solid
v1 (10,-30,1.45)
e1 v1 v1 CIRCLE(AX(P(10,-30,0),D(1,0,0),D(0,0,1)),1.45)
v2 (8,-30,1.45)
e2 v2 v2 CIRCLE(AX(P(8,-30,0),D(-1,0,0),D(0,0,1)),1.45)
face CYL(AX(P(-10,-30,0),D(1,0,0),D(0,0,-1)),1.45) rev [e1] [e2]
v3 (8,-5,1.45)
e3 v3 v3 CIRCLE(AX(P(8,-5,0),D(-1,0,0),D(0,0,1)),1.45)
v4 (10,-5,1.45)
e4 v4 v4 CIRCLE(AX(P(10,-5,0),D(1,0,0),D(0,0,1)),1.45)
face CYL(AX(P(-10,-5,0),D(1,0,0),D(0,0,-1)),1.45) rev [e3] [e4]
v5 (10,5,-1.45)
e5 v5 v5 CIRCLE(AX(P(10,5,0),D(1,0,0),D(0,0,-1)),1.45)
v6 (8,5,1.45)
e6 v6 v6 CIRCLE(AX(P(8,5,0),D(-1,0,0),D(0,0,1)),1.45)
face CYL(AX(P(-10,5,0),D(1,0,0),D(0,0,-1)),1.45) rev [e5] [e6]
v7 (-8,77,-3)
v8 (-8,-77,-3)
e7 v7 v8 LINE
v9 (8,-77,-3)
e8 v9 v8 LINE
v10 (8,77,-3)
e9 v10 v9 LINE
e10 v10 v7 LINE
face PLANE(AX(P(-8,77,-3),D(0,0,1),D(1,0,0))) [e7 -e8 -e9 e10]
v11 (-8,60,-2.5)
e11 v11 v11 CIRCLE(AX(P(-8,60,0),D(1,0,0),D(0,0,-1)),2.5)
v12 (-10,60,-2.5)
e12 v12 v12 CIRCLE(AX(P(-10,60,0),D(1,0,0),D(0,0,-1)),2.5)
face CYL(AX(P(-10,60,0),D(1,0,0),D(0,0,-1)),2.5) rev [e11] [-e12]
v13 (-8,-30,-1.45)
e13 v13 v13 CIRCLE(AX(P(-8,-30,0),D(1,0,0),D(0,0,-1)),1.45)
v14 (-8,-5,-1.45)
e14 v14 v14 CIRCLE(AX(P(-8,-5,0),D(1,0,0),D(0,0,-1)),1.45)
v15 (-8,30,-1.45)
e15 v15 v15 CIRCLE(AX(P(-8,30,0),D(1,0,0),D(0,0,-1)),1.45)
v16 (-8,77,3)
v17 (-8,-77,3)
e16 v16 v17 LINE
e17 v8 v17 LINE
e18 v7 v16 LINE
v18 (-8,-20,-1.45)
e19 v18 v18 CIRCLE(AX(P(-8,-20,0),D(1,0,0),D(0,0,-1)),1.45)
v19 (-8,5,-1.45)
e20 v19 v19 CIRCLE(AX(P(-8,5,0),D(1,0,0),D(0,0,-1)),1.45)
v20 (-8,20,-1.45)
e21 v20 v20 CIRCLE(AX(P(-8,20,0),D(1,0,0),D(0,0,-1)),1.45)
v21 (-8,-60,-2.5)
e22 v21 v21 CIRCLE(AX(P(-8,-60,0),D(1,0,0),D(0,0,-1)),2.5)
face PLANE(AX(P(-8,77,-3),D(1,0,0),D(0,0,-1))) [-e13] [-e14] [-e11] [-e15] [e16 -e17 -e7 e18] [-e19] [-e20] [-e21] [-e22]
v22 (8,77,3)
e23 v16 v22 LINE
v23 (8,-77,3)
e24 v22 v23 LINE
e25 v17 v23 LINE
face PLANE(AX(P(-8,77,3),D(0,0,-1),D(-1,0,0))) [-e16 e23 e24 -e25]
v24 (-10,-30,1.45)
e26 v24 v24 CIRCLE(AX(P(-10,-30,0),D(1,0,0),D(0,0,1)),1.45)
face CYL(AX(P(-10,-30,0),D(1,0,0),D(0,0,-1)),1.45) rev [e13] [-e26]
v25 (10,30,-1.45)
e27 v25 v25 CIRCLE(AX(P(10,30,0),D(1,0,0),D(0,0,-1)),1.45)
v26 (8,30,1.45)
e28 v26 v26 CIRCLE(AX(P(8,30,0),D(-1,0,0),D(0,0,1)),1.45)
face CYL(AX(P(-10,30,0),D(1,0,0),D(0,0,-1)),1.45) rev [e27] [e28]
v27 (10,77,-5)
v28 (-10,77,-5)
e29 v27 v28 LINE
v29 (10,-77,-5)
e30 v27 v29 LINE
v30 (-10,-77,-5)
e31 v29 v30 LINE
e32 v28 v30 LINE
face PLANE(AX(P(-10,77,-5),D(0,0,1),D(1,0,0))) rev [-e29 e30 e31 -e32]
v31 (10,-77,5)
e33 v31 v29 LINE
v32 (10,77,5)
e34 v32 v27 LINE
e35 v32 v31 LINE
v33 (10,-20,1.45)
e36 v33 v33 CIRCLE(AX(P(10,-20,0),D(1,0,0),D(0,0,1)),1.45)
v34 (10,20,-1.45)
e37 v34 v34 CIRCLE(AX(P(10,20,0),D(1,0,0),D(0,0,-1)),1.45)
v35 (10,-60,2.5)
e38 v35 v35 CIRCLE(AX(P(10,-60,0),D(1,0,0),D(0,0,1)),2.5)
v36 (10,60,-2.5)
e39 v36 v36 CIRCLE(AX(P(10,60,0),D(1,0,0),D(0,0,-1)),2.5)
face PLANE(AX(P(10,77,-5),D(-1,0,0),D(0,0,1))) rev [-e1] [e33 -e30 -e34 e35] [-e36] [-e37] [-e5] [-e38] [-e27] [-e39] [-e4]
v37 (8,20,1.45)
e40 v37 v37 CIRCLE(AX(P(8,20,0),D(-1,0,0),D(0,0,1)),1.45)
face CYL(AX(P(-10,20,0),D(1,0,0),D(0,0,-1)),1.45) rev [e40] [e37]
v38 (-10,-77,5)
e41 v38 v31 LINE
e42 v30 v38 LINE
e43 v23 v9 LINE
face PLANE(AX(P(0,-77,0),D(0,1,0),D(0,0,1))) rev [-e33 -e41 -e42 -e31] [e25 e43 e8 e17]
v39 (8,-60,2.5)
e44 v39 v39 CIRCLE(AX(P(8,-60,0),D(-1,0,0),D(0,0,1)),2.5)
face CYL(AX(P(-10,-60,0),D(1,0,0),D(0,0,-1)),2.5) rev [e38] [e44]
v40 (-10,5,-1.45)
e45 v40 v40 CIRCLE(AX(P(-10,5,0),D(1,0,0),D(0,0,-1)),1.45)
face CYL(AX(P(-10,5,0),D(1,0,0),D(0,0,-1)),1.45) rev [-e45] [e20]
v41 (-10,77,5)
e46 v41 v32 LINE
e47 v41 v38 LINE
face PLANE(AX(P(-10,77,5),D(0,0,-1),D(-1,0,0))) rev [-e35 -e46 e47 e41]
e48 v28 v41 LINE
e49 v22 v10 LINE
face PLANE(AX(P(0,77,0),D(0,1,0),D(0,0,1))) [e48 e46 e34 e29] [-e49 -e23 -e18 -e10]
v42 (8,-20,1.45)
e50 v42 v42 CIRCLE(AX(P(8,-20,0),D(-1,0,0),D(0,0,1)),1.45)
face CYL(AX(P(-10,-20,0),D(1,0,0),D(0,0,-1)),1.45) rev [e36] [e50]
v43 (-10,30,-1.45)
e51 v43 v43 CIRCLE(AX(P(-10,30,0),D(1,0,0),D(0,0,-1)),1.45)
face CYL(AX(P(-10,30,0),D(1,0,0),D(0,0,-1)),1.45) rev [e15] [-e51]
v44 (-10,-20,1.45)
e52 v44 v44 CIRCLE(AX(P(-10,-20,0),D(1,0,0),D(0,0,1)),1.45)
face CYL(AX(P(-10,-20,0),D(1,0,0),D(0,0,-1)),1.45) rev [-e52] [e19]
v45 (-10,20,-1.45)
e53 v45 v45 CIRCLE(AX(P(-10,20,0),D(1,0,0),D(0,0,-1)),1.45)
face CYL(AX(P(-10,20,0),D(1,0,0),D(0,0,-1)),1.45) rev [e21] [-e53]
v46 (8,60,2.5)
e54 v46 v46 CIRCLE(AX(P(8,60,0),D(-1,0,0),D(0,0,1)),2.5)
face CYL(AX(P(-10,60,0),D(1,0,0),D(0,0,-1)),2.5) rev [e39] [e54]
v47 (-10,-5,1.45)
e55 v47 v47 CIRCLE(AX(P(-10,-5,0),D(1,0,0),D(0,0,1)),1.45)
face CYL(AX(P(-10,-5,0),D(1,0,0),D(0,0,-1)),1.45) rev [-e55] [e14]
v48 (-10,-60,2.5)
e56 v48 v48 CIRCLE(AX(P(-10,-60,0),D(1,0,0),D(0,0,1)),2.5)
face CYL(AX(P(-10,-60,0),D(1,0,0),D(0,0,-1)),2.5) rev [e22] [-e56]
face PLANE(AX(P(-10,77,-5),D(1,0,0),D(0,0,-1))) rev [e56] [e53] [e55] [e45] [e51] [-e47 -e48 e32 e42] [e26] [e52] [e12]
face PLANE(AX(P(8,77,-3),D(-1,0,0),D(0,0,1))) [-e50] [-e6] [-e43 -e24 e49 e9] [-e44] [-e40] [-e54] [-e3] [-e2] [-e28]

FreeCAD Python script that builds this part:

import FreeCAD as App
import Part
import Sketcher
from FreeCAD import Vector


def add_polygon(sketch, points):
    """Adds a closed chain of lines whose ends are joined by coincident constraints."""
    first, n = sketch.GeometryCount, len(points)
    for a, b in zip(points, points[1:] + points[:1]):
        sketch.addGeometry(Part.LineSegment(App.Vector(*a, 0), App.Vector(*b, 0)), False)
    for i in range(n):
        sketch.addConstraint(Sketcher.Constraint("Coincident", first + i, 2, first + (i + 1) % n, 1))

doc = App.newDocument("Part")
body = doc.addObject("PartDesign::Body", "Body")

# Sketch on XZ plane
sketch1 = body.newObject("Sketcher::SketchObject", "Sketch")
sketch1.AttachmentSupport = (doc.getObject("XZ_Plane"), [""])
sketch1.MapMode = "FlatFace"
add_polygon(sketch1, [(-10, -5), (-10, 5), (10, 5), (10, -5)])  # lines 0-3
add_polygon(sketch1, [(8, 3), (-8, 3), (-8, -3), (8, -3)])  # lines 4-7
sketch1.addConstraint(Sketcher.Constraint("Vertical", 0))
sketch1.addConstraint(Sketcher.Constraint("Horizontal", 1))
sketch1.addConstraint(Sketcher.Constraint("Vertical", 2))
sketch1.addConstraint(Sketcher.Constraint("Horizontal", 3))
sketch1.addConstraint(Sketcher.Constraint("Horizontal", 4))
sketch1.addConstraint(Sketcher.Constraint("Vertical", 5))
sketch1.addConstraint(Sketcher.Constraint("Horizontal", 6))
sketch1.addConstraint(Sketcher.Constraint("Vertical", 7))
sketch1.addConstraint(Sketcher.Constraint("Symmetric", 0, 2, 2, 2, -1, 1))
sketch1.addConstraint(Sketcher.Constraint("Symmetric", 4, 2, 6, 2, -1, 1))
sketch1.addConstraint(Sketcher.Constraint("DistanceX", 1, 1, 1, 2, 20.0))
sketch1.addConstraint(Sketcher.Constraint("DistanceX", 4, 2, 4, 1, 16.0))
sketch1.addConstraint(Sketcher.Constraint("DistanceY", 0, 1, 0, 2, 10.0))
sketch1.addConstraint(Sketcher.Constraint("DistanceY", 5, 2, 5, 1, 6.0))
pad1 = body.newObject("PartDesign::Pad", "Pad")
pad1.Profile = sketch1
pad1.Length = 154
pad1.Midplane = True

# Sketch on YZ plane
sketch2 = body.newObject("Sketcher::SketchObject", "Sketch001")
sketch2.AttachmentSupport = (doc.getObject("YZ_Plane"), [""])
sketch2.MapMode = "FlatFace"
sketch2.AttachmentOffset = App.Placement(Vector(0, 0, 10), App.Rotation())
sketch2.addGeometry(Part.Circle(Vector(5, 0, 0), Vector(0, 0, 1), 1.45), False)
sketch2.addGeometry(Part.Circle(Vector(20, 0, 0), Vector(0, 0, 1), 1.45), False)
sketch2.addGeometry(Part.Circle(Vector(30, 0, 0), Vector(0, 0, 1), 1.45), False)
sketch2.addGeometry(Part.Circle(Vector(-30, 0, 0), Vector(0, 0, 1), 1.45), False)
sketch2.addGeometry(Part.Circle(Vector(-20, 0, 0), Vector(0, 0, 1), 1.45), False)
sketch2.addGeometry(Part.Circle(Vector(-5, 0, 0), Vector(0, 0, 1), 1.45), False)
sketch2.addGeometry(Part.Circle(Vector(60, 0, 0), Vector(0, 0, 1), 2.5), False)
sketch2.addGeometry(Part.Circle(Vector(-60, 0, 0), Vector(0, 0, 1), 2.5), False)
sketch2.addConstraint(Sketcher.Constraint("Equal", 0, 1))
sketch2.addConstraint(Sketcher.Constraint("Equal", 1, 2))
sketch2.addConstraint(Sketcher.Constraint("Equal", 2, 3))
sketch2.addConstraint(Sketcher.Constraint("Equal", 3, 4))
sketch2.addConstraint(Sketcher.Constraint("Equal", 4, 5))
sketch2.addConstraint(Sketcher.Constraint("Equal", 6, 7))
sketch2.addConstraint(Sketcher.Constraint("Symmetric", 2, 3, 3, 3, -1, 1))
sketch2.addConstraint(Sketcher.Constraint("Symmetric", 1, 3, 4, 3, -1, 1))
sketch2.addConstraint(Sketcher.Constraint("Symmetric", 0, 3, 5, 3, -1, 1))
sketch2.addConstraint(Sketcher.Constraint("Symmetric", 6, 3, 7, 3, -1, 1))
sketch2.addConstraint(Sketcher.Constraint("PointOnObject", 0, 3, -1))
sketch2.addConstraint(Sketcher.Constraint("PointOnObject", 1, 3, -1))
sketch2.addConstraint(Sketcher.Constraint("PointOnObject", 2, 3, -1))
sketch2.addConstraint(Sketcher.Constraint("PointOnObject", 6, 3, -1))
sketch2.addConstraint(Sketcher.Constraint("Diameter", 6, 5.0))
sketch2.addConstraint(Sketcher.Constraint("Diameter", 0, 2.9))
sketch2.addConstraint(Sketcher.Constraint("DistanceX", -1, 1, 0, 3, 5.0))
sketch2.addConstraint(Sketcher.Constraint("DistanceX", -1, 1, 1, 3, 20.0))
sketch2.addConstraint(Sketcher.Constraint("DistanceX", -1, 1, 2, 3, 30.0))
sketch2.addConstraint(Sketcher.Constraint("DistanceX", -1, 1, 6, 3, 60.0))
pocket1 = body.newObject("PartDesign::Pocket", "Pocket")
pocket1.Profile = sketch2
pocket1.Type = "ThroughAll"

doc.recompute()
